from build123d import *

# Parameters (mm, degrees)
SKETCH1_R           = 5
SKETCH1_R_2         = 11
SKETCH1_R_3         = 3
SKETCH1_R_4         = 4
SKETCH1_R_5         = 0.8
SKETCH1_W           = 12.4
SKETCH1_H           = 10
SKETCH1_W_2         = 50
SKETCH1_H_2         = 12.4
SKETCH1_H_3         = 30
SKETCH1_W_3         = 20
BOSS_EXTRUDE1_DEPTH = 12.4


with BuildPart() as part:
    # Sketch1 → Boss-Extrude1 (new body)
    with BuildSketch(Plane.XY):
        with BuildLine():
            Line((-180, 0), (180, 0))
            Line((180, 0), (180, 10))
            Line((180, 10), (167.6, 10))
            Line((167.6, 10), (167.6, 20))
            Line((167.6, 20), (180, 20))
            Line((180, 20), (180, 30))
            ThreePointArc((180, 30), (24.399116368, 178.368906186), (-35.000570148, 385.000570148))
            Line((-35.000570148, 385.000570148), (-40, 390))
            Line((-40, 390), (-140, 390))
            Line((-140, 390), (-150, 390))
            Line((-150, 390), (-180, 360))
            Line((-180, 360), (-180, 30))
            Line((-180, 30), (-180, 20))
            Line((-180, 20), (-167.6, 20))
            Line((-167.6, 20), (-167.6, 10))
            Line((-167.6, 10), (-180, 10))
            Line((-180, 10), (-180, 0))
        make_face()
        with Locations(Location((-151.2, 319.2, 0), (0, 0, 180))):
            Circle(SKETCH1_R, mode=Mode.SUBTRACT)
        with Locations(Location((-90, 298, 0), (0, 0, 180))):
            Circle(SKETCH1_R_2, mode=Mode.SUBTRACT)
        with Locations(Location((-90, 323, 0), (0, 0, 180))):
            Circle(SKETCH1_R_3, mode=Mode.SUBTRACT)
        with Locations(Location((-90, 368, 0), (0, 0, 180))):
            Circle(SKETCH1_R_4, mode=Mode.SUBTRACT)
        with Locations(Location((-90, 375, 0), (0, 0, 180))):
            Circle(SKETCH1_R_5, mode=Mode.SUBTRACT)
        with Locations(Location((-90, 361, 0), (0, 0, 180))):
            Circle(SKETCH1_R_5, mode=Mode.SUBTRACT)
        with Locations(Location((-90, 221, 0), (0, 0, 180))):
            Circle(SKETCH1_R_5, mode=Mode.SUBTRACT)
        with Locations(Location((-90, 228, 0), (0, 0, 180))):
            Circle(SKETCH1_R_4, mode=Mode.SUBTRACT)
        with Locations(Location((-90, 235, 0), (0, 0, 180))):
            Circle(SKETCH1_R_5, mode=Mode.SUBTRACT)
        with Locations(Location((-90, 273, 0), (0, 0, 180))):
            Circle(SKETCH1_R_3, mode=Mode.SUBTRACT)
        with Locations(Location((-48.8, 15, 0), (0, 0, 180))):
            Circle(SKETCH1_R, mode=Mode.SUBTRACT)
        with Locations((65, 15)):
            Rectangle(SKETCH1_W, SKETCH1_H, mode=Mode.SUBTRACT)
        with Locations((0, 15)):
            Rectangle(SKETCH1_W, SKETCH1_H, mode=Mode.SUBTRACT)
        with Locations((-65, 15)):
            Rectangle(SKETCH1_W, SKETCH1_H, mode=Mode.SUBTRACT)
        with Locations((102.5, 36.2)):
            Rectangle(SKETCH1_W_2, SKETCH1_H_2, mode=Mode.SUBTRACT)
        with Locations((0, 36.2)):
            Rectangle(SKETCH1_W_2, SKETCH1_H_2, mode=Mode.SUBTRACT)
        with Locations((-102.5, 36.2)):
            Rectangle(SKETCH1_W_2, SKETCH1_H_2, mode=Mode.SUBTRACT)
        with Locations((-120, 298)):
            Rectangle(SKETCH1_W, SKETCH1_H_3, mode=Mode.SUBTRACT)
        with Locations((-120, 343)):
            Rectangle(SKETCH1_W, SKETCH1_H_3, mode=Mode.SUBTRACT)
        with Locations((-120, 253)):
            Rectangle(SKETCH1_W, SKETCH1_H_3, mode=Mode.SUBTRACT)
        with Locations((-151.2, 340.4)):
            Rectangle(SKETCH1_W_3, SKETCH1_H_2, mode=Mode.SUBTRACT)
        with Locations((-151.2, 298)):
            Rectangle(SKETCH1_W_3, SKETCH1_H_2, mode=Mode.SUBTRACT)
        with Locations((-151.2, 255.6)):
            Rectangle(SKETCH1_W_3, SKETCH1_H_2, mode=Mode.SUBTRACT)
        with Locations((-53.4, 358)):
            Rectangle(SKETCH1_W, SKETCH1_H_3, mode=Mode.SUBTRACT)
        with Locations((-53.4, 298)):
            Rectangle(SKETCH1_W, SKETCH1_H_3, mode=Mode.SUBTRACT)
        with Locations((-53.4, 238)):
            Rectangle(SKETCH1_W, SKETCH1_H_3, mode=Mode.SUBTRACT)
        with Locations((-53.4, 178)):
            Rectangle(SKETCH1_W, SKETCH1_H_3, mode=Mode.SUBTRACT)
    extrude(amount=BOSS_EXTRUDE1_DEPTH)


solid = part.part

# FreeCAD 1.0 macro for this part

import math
import FreeCAD as App
import Part
import Sketcher
Q = App.Units.Quantity

doc = App.newDocument("Part")
body = doc.addObject("PartDesign::Body", "Body")

# Sketch on XY plane
sketch1 = doc.addObject("Sketcher::SketchObject", "Sketch")
body.addObject(sketch1)
sketch1.AttachmentSupport = (doc.XY_Plane, [""])
sketch1.MapMode = "FlatFace"
sketch1.addGeometry(Part.LineSegment(App.Vector(-180, 0, 0), App.Vector(180, 0, 0)), False)
sketch1.addGeometry(Part.LineSegment(App.Vector(180, 0, 0), App.Vector(180, 10, 0)), False)
sketch1.addGeometry(Part.LineSegment(App.Vector(180, 10, 0), App.Vector(167.6, 10, 0)), False)
sketch1.addGeometry(Part.LineSegment(App.Vector(167.6, 10, 0), App.Vector(167.6, 20, 0)), False)
sketch1.addGeometry(Part.LineSegment(App.Vector(167.6, 20, 0), App.Vector(180, 20, 0)), False)
sketch1.addGeometry(Part.LineSegment(App.Vector(180, 20, 0), App.Vector(180, 30, 0)), False)
sketch1.addGeometry(Part.ArcOfCircle(Part.Circle(App.Vector(375.954188, 391.282764, 0), App.Vector(0, 0, 1), 411.002773), math.radians(-179.124198), math.radians(-118.47472)), False)
sketch1.addGeometry(Part.LineSegment(App.Vector(-35.00057, 385.00057, 0), App.Vector(-40, 390, 0)), False)
sketch1.addGeometry(Part.LineSegment(App.Vector(-40, 390, 0), App.Vector(-150, 390, 0)), False)
sketch1.addGeometry(Part.LineSegment(App.Vector(-150, 390, 0), App.Vector(-180, 360, 0)), False)
sketch1.addGeometry(Part.LineSegment(App.Vector(-180, 360, 0), App.Vector(-180, 20, 0)), False)
sketch1.addGeometry(Part.LineSegment(App.Vector(-180, 20, 0), App.Vector(-167.6, 20, 0)), False)
sketch1.addGeometry(Part.LineSegment(App.Vector(-167.6, 20, 0), App.Vector(-167.6, 10, 0)), False)
sketch1.addGeometry(Part.LineSegment(App.Vector(-167.6, 10, 0), App.Vector(-180, 10, 0)), False)
sketch1.addGeometry(Part.LineSegment(App.Vector(-180, 10, 0), App.Vector(-180, 0, 0)), False)
sketch1.addGeometry(Part.LineSegment(App.Vector(-77.5, 30, 0), App.Vector(-127.5, 30, 0)), False)
sketch1.addGeometry(Part.LineSegment(App.Vector(-127.5, 30, 0), App.Vector(-127.5, 42.4, 0)), False)
sketch1.addGeometry(Part.LineSegment(App.Vector(-127.5, 42.4, 0), App.Vector(-77.5, 42.4, 0)), False)
sketch1.addGeometry(Part.LineSegment(App.Vector(-77.5, 42.4, 0), App.Vector(-77.5, 30, 0)), False)
sketch1.addGeometry(Part.LineSegment(App.Vector(-58.8, 10, 0), App.Vector(-71.2, 10, 0)), False)
sketch1.addGeometry(Part.LineSegment(App.Vector(-71.2, 10, 0), App.Vector(-71.2, 20, 0)), False)
sketch1.addGeometry(Part.LineSegment(App.Vector(-71.2, 20, 0), App.Vector(-58.8, 20, 0)), False)
sketch1.addGeometry(Part.LineSegment(App.Vector(-58.8, 20, 0), App.Vector(-58.8, 10, 0)), False)
sketch1.addGeometry(Part.Circle(App.Vector(-48.8, 15, 0), App.Vector(0, 0, 1), 5), False)
sketch1.addGeometry(Part.LineSegment(App.Vector(-47.2, 163, 0), App.Vector(-59.6, 163, 0)), False)
sketch1.addGeometry(Part.LineSegment(App.Vector(-59.6, 163, 0), App.Vector(-59.6, 193, 0)), False)
sketch1.addGeometry(Part.LineSegment(App.Vector(-59.6, 193, 0), App.Vector(-47.2, 193, 0)), False)
sketch1.addGeometry(Part.LineSegment(App.Vector(-47.2, 193, 0), App.Vector(-47.2, 163, 0)), False)
sketch1.addGeometry(Part.LineSegment(App.Vector(6.2, 10, 0), App.Vector(-6.2, 10, 0)), False)
sketch1.addGeometry(Part.LineSegment(App.Vector(-6.2, 10, 0), App.Vector(-6.2, 20, 0)), False)
sketch1.addGeometry(Part.LineSegment(App.Vector(-6.2, 20, 0), App.Vector(6.2, 20, 0)), False)
sketch1.addGeometry(Part.LineSegment(App.Vector(6.2, 20, 0), App.Vector(6.2, 10, 0)), False)
sketch1.addGeometry(Part.LineSegment(App.Vector(25, 30, 0), App.Vector(-25, 30, 0)), False)
sketch1.addGeometry(Part.LineSegment(App.Vector(-25, 30, 0), App.Vector(-25, 42.4, 0)), False)
sketch1.addGeometry(Part.LineSegment(App.Vector(-25, 42.4, 0), App.Vector(25, 42.4, 0)), False)
sketch1.addGeometry(Part.LineSegment(App.Vector(25, 42.4, 0), App.Vector(25, 30, 0)), False)
sketch1.addGeometry(Part.LineSegment(App.Vector(71.2, 10, 0), App.Vector(58.8, 10, 0)), False)
sketch1.addGeometry(Part.LineSegment(App.Vector(58.8, 10, 0), App.Vector(58.8, 20, 0)), False)
sketch1.addGeometry(Part.LineSegment(App.Vector(58.8, 20, 0), App.Vector(71.2, 20, 0)), False)
sketch1.addGeometry(Part.LineSegment(App.Vector(71.2, 20, 0), App.Vector(71.2, 10, 0)), False)
sketch1.addGeometry(Part.LineSegment(App.Vector(127.5, 30, 0), App.Vector(77.5, 30, 0)), False)
sketch1.addGeometry(Part.LineSegment(App.Vector(77.5, 30, 0), App.Vector(77.5, 42.4, 0)), False)
sketch1.addGeometry(Part.LineSegment(App.Vector(77.5, 42.4, 0), App.Vector(127.5, 42.4, 0)), False)
sketch1.addGeometry(Part.LineSegment(App.Vector(127.5, 42.4, 0), App.Vector(127.5, 30, 0)), False)
sketch1.addGeometry(Part.Circle(App.Vector(-90, 221, 0), App.Vector(0, 0, 1), 0.8), False)
sketch1.addGeometry(Part.Circle(App.Vector(-90, 228, 0), App.Vector(0, 0, 1), 4), False)
sketch1.addGeometry(Part.Circle(App.Vector(-90, 235, 0), App.Vector(0, 0, 1), 0.8), False)
sketch1.addGeometry(Part.LineSegment(App.Vector(-141.2, 249.4, 0), App.Vector(-161.2, 249.4, 0)), False)
sketch1.addGeometry(Part.LineSegment(App.Vector(-161.2, 249.4, 0), App.Vector(-161.2, 261.8, 0)), False)
sketch1.addGeometry(Part.LineSegment(App.Vector(-161.2, 261.8, 0), App.Vector(-141.2, 261.8, 0)), False)
sketch1.addGeometry(Part.LineSegment(App.Vector(-141.2, 261.8, 0), App.Vector(-141.2, 249.4, 0)), False)
sketch1.addGeometry(Part.LineSegment(App.Vector(-113.8, 238, 0), App.Vector(-126.2, 238, 0)), False)
sketch1.addGeometry(Part.LineSegment(App.Vector(-126.2, 238, 0), App.Vector(-126.2, 268, 0)), False)
sketch1.addGeometry(Part.LineSegment(App.Vector(-126.2, 268, 0), App.Vector(-113.8, 268, 0)), False)
sketch1.addGeometry(Part.LineSegment(App.Vector(-113.8, 268, 0), App.Vector(-113.8, 238, 0)), False)
sketch1.addGeometry(Part.Circle(App.Vector(-90, 273, 0), App.Vector(0, 0, 1), 3), False)
sketch1.addGeometry(Part.LineSegment(App.Vector(-47.2, 223, 0), App.Vector(-59.6, 223, 0)), False)
sketch1.addGeometry(Part.LineSegment(App.Vector(-59.6, 223, 0), App.Vector(-59.6, 253, 0)), False)
sketch1.addGeometry(Part.LineSegment(App.Vector(-59.6, 253, 0), App.Vector(-47.2, 253, 0)), False)
sketch1.addGeometry(Part.LineSegment(App.Vector(-47.2, 253, 0), App.Vector(-47.2, 223, 0)), False)
sketch1.addGeometry(Part.LineSegment(App.Vector(-141.2, 291.8, 0), App.Vector(-161.2, 291.8, 0)), False)
sketch1.addGeometry(Part.LineSegment(App.Vector(-161.2, 291.8, 0), App.Vector(-161.2, 304.2, 0)), False)
sketch1.addGeometry(Part.LineSegment(App.Vector(-161.2, 304.2, 0), App.Vector(-141.2, 304.2, 0)), False)
sketch1.addGeometry(Part.LineSegment(App.Vector(-141.2, 304.2, 0), App.Vector(-141.2, 291.8, 0)), False)
sketch1.addGeometry(Part.Circle(App.Vector(-151.2, 319.2, 0), App.Vector(0, 0, 1), 5), False)
sketch1.addGeometry(Part.LineSegment(App.Vector(-113.8, 283, 0), App.Vector(-126.2, 283, 0)), False)
sketch1.addGeometry(Part.LineSegment(App.Vector(-126.2, 283, 0), App.Vector(-126.2, 313, 0)), False)
sketch1.addGeometry(Part.LineSegment(App.Vector(-126.2, 313, 0), App.Vector(-113.8, 313, 0)), False)
sketch1.addGeometry(Part.LineSegment(App.Vector(-113.8, 313, 0), App.Vector(-113.8, 283, 0)), False)
sketch1.addGeometry(Part.Circle(App.Vector(-90, 298, 0), App.Vector(0, 0, 1), 11), False)
sketch1.addGeometry(Part.Circle(App.Vector(-90, 323, 0), App.Vector(0, 0, 1), 3), False)
sketch1.addGeometry(Part.LineSegment(App.Vector(-141.2, 334.2, 0), App.Vector(-161.2, 334.2, 0)), False)
sketch1.addGeometry(Part.LineSegment(App.Vector(-161.2, 334.2, 0), App.Vector(-161.2, 346.6, 0)), False)
sketch1.addGeometry(Part.LineSegment(App.Vector(-161.2, 346.6, 0), App.Vector(-141.2, 346.6, 0)), False)
sketch1.addGeometry(Part.LineSegment(App.Vector(-141.2, 346.6, 0), App.Vector(-141.2, 334.2, 0)), False)
sketch1.addGeometry(Part.LineSegment(App.Vector(-113.8, 328, 0), App.Vector(-126.2, 328, 0)), False)
sketch1.addGeometry(Part.LineSegment(App.Vector(-126.2, 328, 0), App.Vector(-126.2, 358, 0)), False)
sketch1.addGeometry(Part.LineSegment(App.Vector(-126.2, 358, 0), App.Vector(-113.8, 358, 0)), False)
sketch1.addGeometry(Part.LineSegment(App.Vector(-113.8, 358, 0), App.Vector(-113.8, 328, 0)), False)
sketch1.addGeometry(Part.Circle(App.Vector(-90, 361, 0), App.Vector(0, 0, 1), 0.8), False)
sketch1.addGeometry(Part.Circle(App.Vector(-90, 368, 0), App.Vector(0, 0, 1), 4), False)
sketch1.addGeometry(Part.Circle(App.Vector(-90, 375, 0), App.Vector(0, 0, 1), 0.8), False)
sketch1.addGeometry(Part.LineSegment(App.Vector(-47.2, 283, 0), App.Vector(-59.6, 283, 0)), False)
sketch1.addGeometry(Part.LineSegment(App.Vector(-59.6, 283, 0), App.Vector(-59.6, 313, 0)), False)
sketch1.addGeometry(Part.LineSegment(App.Vector(-59.6, 313, 0), App.Vector(-47.2, 313, 0)), False)
sketch1.addGeometry(Part.LineSegment(App.Vector(-47.2, 313, 0), App.Vector(-47.2, 283, 0)), False)
sketch1.addGeometry(Part.LineSegment(App.Vector(-47.2, 343, 0), App.Vector(-59.6, 343, 0)), False)
sketch1.addGeometry(Part.LineSegment(App.Vector(-59.6, 343, 0), App.Vector(-59.6, 373, 0)), False)
sketch1.addGeometry(Part.LineSegment(App.Vector(-59.6, 373, 0), App.Vector(-47.2, 373, 0)), False)
sketch1.addGeometry(Part.LineSegment(App.Vector(-47.2, 373, 0), App.Vector(-47.2, 343, 0)), False)
sketch1.addConstraint(Sketcher.Constraint("Coincident", 0, 2, 1, 1))
sketch1.addConstraint(Sketcher.Constraint("Coincident", 1, 2, 2, 1))
sketch1.addConstraint(Sketcher.Constraint("Coincident", 2, 2, 3, 1))
sketch1.addConstraint(Sketcher.Constraint("Coincident", 3, 2, 4, 1))
sketch1.addConstraint(Sketcher.Constraint("Coincident", 4, 2, 5, 1))
sketch1.addConstraint(Sketcher.Constraint("Coincident", 5, 2, 6, 2))
sketch1.addConstraint(Sketcher.Constraint("Coincident", 6, 1, 7, 1))
sketch1.addConstraint(Sketcher.Constraint("Coincident", 7, 2, 8, 1))
sketch1.addConstraint(Sketcher.Constraint("Coincident", 8, 2, 9, 1))
sketch1.addConstraint(Sketcher.Constraint("Coincident", 9, 2, 10, 1))
sketch1.addConstraint(Sketcher.Constraint("Coincident", 10, 2, 11, 1))
sketch1.addConstraint(Sketcher.Constraint("Coincident", 11, 2, 12, 1))
sketch1.addConstraint(Sketcher.Constraint("Coincident", 12, 2, 13, 1))
sketch1.addConstraint(Sketcher.Constraint("Coincident", 13, 2, 14, 1))
sketch1.addConstraint(Sketcher.Constraint("Coincident", 14, 2, 0, 1))
sketch1.addConstraint(Sketcher.Constraint("Coincident", 15, 2, 16, 1))
sketch1.addConstraint(Sketcher.Constraint("Coincident", 16, 2, 17, 1))
sketch1.addConstraint(Sketcher.Constraint("Coincident", 17, 2, 18, 1))
sketch1.addConstraint(Sketcher.Constraint("Coincident", 18, 2, 15, 1))
sketch1.addConstraint(Sketcher.Constraint("Coincident", 19, 2, 20, 1))
sketch1.addConstraint(Sketcher.Constraint("Coincident", 20, 2, 21, 1))
sketch1.addConstraint(Sketcher.Constraint("Coincident", 21, 2, 22, 1))
sketch1.addConstraint(Sketcher.Constraint("Coincident", 22, 2, 19, 1))
sketch1.addConstraint(Sketcher.Constraint("Coincident", 24, 2, 25, 1))
sketch1.addConstraint(Sketcher.Constraint("Coincident", 25, 2, 26, 1))
sketch1.addConstraint(Sketcher.Constraint("Coincident", 26, 2, 27, 1))
sketch1.addConstraint(Sketcher.Constraint("Coincident", 27, 2, 24, 1))
sketch1.addConstraint(Sketcher.Constraint("Coincident", 28, 2, 29, 1))
sketch1.addConstraint(Sketcher.Constraint("Coincident", 29, 2, 30, 1))
sketch1.addConstraint(Sketcher.Constraint("Coincident", 30, 2, 31, 1))
sketch1.addConstraint(Sketcher.Constraint("Coincident", 31, 2, 28, 1))
sketch1.addConstraint(Sketcher.Constraint("Coincident", 32, 2, 33, 1))
sketch1.addConstraint(Sketcher.Constraint("Coincident", 33, 2, 34, 1))
sketch1.addConstraint(Sketcher.Constraint("Coincident", 34, 2, 35, 1))
sketch1.addConstraint(Sketcher.Constraint("Coincident", 35, 2, 32, 1))
sketch1.addConstraint(Sketcher.Constraint("Coincident", 36, 2, 37, 1))
sketch1.addConstraint(Sketcher.Constraint("Coincident", 37, 2, 38, 1))
sketch1.addConstraint(Sketcher.Constraint("Coincident", 38, 2, 39, 1))
sketch1.addConstraint(Sketcher.Constraint("Coincident", 39, 2, 36, 1))
sketch1.addConstraint(Sketcher.Constraint("Coincident", 40, 2, 41, 1))
sketch1.addConstraint(Sketcher.Constraint("Coincident", 41, 2, 42, 1))
sketch1.addConstraint(Sketcher.Constraint("Coincident", 42, 2, 43, 1))
sketch1.addConstraint(Sketcher.Constraint("Coincident", 43, 2, 40, 1))
sketch1.addConstraint(Sketcher.Constraint("Coincident", 47, 2, 48, 1))
sketch1.addConstraint(Sketcher.Constraint("Coincident", 48, 2, 49, 1))
sketch1.addConstraint(Sketcher.Constraint("Coincident", 49, 2, 50, 1))
sketch1.addConstraint(Sketcher.Constraint("Coincident", 50, 2, 47, 1))
sketch1.addConstraint(Sketcher.Constraint("Coincident", 51, 2, 52, 1))
sketch1.addConstraint(Sketcher.Constraint("Coincident", 52, 2, 53, 1))
sketch1.addConstraint(Sketcher.Constraint("Coincident", 53, 2, 54, 1))
sketch1.addConstraint(Sketcher.Constraint("Coincident", 54, 2, 51, 1))
sketch1.addConstraint(Sketcher.Constraint("Coincident", 56, 2, 57, 1))
sketch1.addConstraint(Sketcher.Constraint("Coincident", 57, 2, 58, 1))
sketch1.addConstraint(Sketcher.Constraint("Coincident", 58, 2, 59, 1))
sketch1.addConstraint(Sketcher.Constraint("Coincident", 59, 2, 56, 1))
sketch1.addConstraint(Sketcher.Constraint("Coincident", 60, 2, 61, 1))
sketch1.addConstraint(Sketcher.Constraint("Coincident", 61, 2, 62, 1))
sketch1.addConstraint(Sketcher.Constraint("Coincident", 62, 2, 63, 1))
sketch1.addConstraint(Sketcher.Constraint("Coincident", 63, 2, 60, 1))
sketch1.addConstraint(Sketcher.Constraint("Coincident", 65, 2, 66, 1))
sketch1.addConstraint(Sketcher.Constraint("Coincident", 66, 2, 67, 1))
sketch1.addConstraint(Sketcher.Constraint("Coincident", 67, 2, 68, 1))
sketch1.addConstraint(Sketcher.Constraint("Coincident", 68, 2, 65, 1))
sketch1.addConstraint(Sketcher.Constraint("Coincident", 71, 2, 72, 1))
sketch1.addConstraint(Sketcher.Constraint("Coincident", 72, 2, 73, 1))
sketch1.addConstraint(Sketcher.Constraint("Coincident", 73, 2, 74, 1))
sketch1.addConstraint(Sketcher.Constraint("Coincident", 74, 2, 71, 1))
sketch1.addConstraint(Sketcher.Constraint("Coincident", 75, 2, 76, 1))
sketch1.addConstraint(Sketcher.Constraint("Coincident", 76, 2, 77, 1))
sketch1.addConstraint(Sketcher.Constraint("Coincident", 77, 2, 78, 1))
sketch1.addConstraint(Sketcher.Constraint("Coincident", 78, 2, 75, 1))
sketch1.addConstraint(Sketcher.Constraint("Coincident", 82, 2, 83, 1))
sketch1.addConstraint(Sketcher.Constraint("Coincident", 83, 2, 84, 1))
sketch1.addConstraint(Sketcher.Constraint("Coincident", 84, 2, 85, 1))
sketch1.addConstraint(Sketcher.Constraint("Coincident", 85, 2, 82, 1))
sketch1.addConstraint(Sketcher.Constraint("Coincident", 86, 2, 87, 1))
sketch1.addConstraint(Sketcher.Constraint("Coincident", 87, 2, 88, 1))
sketch1.addConstraint(Sketcher.Constraint("Coincident", 88, 2, 89, 1))
sketch1.addConstraint(Sketcher.Constraint("Coincident", 89, 2, 86, 1))
sketch1.addConstraint(Sketcher.Constraint("Horizontal", 0))
sketch1.addConstraint(Sketcher.Constraint("Vertical", 1))
sketch1.addConstraint(Sketcher.Constraint("Horizontal", 2))
sketch1.addConstraint(Sketcher.Constraint("Vertical", 3))
sketch1.addConstraint(Sketcher.Constraint("Horizontal", 4))
sketch1.addConstraint(Sketcher.Constraint("Vertical", 5))
sketch1.addConstraint(Sketcher.Constraint("Horizontal", 8))
sketch1.addConstraint(Sketcher.Constraint("Vertical", 10))
sketch1.addConstraint(Sketcher.Constraint("Horizontal", 11))
sketch1.addConstraint(Sketcher.Constraint("Vertical", 12))
sketch1.addConstraint(Sketcher.Constraint("Horizontal", 13))
sketch1.addConstraint(Sketcher.Constraint("Vertical", 14))
sketch1.addConstraint(Sketcher.Constraint("Horizontal", 15))
sketch1.addConstraint(Sketcher.Constraint("Vertical", 16))
sketch1.addConstraint(Sketcher.Constraint("Horizontal", 17))
sketch1.addConstraint(Sketcher.Constraint("Vertical", 18))
sketch1.addConstraint(Sketcher.Constraint("Horizontal", 19))
sketch1.addConstraint(Sketcher.Constraint("Vertical", 20))
sketch1.addConstraint(Sketcher.Constraint("Horizontal", 21))
sketch1.addConstraint(Sketcher.Constraint("Vertical", 22))
sketch1.addConstraint(Sketcher.Constraint("Horizontal", 24))
sketch1.addConstraint(Sketcher.Constraint("Vertical", 25))
sketch1.addConstraint(Sketcher.Constraint("Horizontal", 26))
sketch1.addConstraint(Sketcher.Constraint("Vertical", 27))
sketch1.addConstraint(Sketcher.Constraint("Horizontal", 28))
sketch1.addConstraint(Sketcher.Constraint("Vertical", 29))
sketch1.addConstraint(Sketcher.Constraint("Horizontal", 30))
sketch1.addConstraint(Sketcher.Constraint("Vertical", 31))
sketch1.addConstraint(Sketcher.Constraint("Horizontal", 32))
sketch1.addConstraint(Sketcher.Constraint("Vertical", 33))
sketch1.addConstraint(Sketcher.Constraint("Horizontal", 34))
sketch1.addConstraint(Sketcher.Constraint("Vertical", 35))
sketch1.addConstraint(Sketcher.Constraint("Horizontal", 36))
sketch1.addConstraint(Sketcher.Constraint("Vertical", 37))
sketch1.addConstraint(Sketcher.Constraint("Horizontal", 38))
sketch1.addConstraint(Sketcher.Constraint("Vertical", 39))
sketch1.addConstraint(Sketcher.Constraint("Horizontal", 40))
sketch1.addConstraint(Sketcher.Constraint("Vertical", 41))
sketch1.addConstraint(Sketcher.Constraint("Horizontal", 42))
sketch1.addConstraint(Sketcher.Constraint("Vertical", 43))
sketch1.addConstraint(Sketcher.Constraint("Horizontal", 47))
sketch1.addConstraint(Sketcher.Constraint("Vertical", 48))
sketch1.addConstraint(Sketcher.Constraint("Horizontal", 49))
sketch1.addConstraint(Sketcher.Constraint("Vertical", 50))
sketch1.addConstraint(Sketcher.Constraint("Horizontal", 51))
sketch1.addConstraint(Sketcher.Constraint("Vertical", 52))
sketch1.addConstraint(Sketcher.Constraint("Horizontal", 53))
sketch1.addConstraint(Sketcher.Constraint("Vertical", 54))
sketch1.addConstraint(Sketcher.Constraint("Horizontal", 56))
sketch1.addConstraint(Sketcher.Constraint("Vertical", 57))
sketch1.addConstraint(Sketcher.Constraint("Horizontal", 58))
sketch1.addConstraint(Sketcher.Constraint("Vertical", 59))
sketch1.addConstraint(Sketcher.Constraint("Horizontal", 60))
sketch1.addConstraint(Sketcher.Constraint("Vertical", 61))
sketch1.addConstraint(Sketcher.Constraint("Horizontal", 62))
sketch1.addConstraint(Sketcher.Constraint("Vertical", 63))
sketch1.addConstraint(Sketcher.Constraint("Horizontal", 65))
sketch1.addConstraint(Sketcher.Constraint("Vertical", 66))
sketch1.addConstraint(Sketcher.Constraint("Horizontal", 67))
sketch1.addConstraint(Sketcher.Constraint("Vertical", 68))
sketch1.addConstraint(Sketcher.Constraint("Horizontal", 71))
sketch1.addConstraint(Sketcher.Constraint("Vertical", 72))
sketch1.addConstraint(Sketcher.Constraint("Horizontal", 73))
sketch1.addConstraint(Sketcher.Constraint("Vertical", 74))
sketch1.addConstraint(Sketcher.Constraint("Horizontal", 75))
sketch1.addConstraint(Sketcher.Constraint("Vertical", 76))
sketch1.addConstraint(Sketcher.Constraint("Horizontal", 77))
sketch1.addConstraint(Sketcher.Constraint("Vertical", 78))
sketch1.addConstraint(Sketcher.Constraint("Horizontal", 82))
sketch1.addConstraint(Sketcher.Constraint("Vertical", 83))
sketch1.addConstraint(Sketcher.Constraint("Horizontal", 84))
sketch1.addConstraint(Sketcher.Constraint("Vertical", 85))
sketch1.addConstraint(Sketcher.Constraint("Horizontal", 86))
sketch1.addConstraint(Sketcher.Constraint("Vertical", 87))
sketch1.addConstraint(Sketcher.Constraint("Horizontal", 88))
sketch1.addConstraint(Sketcher.Constraint("Vertical", 89))
sketch1.addConstraint(Sketcher.Constraint("Equal", 44, 46))
sketch1.addConstraint(Sketcher.Constraint("Equal", 23, 64))
sketch1.addConstraint(Sketcher.Constraint("Equal", 55, 70))
sketch1.addConstraint(Sketcher.Constraint("Equal", 46, 79))
sketch1.addConstraint(Sketcher.Constraint("Equal", 45, 80))
sketch1.addConstraint(Sketcher.Constraint("Equal", 79, 81))
sketch1.addConstraint(Sketcher.Constraint("Symmetric", 0, 2, 14, 2, -1, 1))
sketch1.addConstraint(Sketcher.Constraint("Symmetric", 4, 2, 10, 2, -2))
sketch1.addConstraint(Sketcher.Constraint("Symmetric", 2, 2, 12, 2, -2))
sketch1.addConstraint(Sketcher.Constraint("Symmetric", 22, 2, 36, 2, -2))
sketch1.addConstraint(Sketcher.Constraint("Symmetric", 20, 2, 38, 2, -2))
sketch1.addConstraint(Sketcher.Constraint("Symmetric", 18, 2, 40, 2, -2))
sketch1.addConstraint(Sketcher.Constraint("Symmetric", 16, 2, 42, 2, -2))
sketch1.addConstraint(Sketcher.Constraint("Perpendicular", 7, 9))
sketch1.addConstraint(Sketcher.Constraint("Horizontal", 5, 2, 15, 2))
sketch1.addConstraint(Sketcher.Constraint("Horizontal", 13, 2, 19, 2))
sketch1.addConstraint(Sketcher.Constraint("Horizontal", 11, 2, 20, 2))
sketch1.addConstraint(Sketcher.Constraint("Horizontal", 22, 2, 28, 2))
sketch1.addConstraint(Sketcher.Constraint("Horizontal", 21, 2, 29, 2))
sketch1.addConstraint(Sketcher.Constraint("Horizontal", 18, 2, 32, 2))
sketch1.addConstraint(Sketcher.Constraint("Horizontal", 17, 2, 33, 2))
sketch1.addConstraint(Sketcher.Constraint("Horizontal", 68, 2, 82, 2))
sketch1.addConstraint(Sketcher.Constraint("Horizontal", 67, 2, 83, 2))
sketch1.addConstraint(Sketcher.Constraint("Vertical", 44, 3, 45, 3))
sketch1.addConstraint(Sketcher.Constraint("Vertical", 45, 3, 46, 3))
sketch1.addConstraint(Sketcher.Constraint("Vertical", 46, 3, 55, 3))
sketch1.addConstraint(Sketcher.Constraint("Vertical", 55, 3, 69, 3))
sketch1.addConstraint(Sketcher.Constraint("Vertical", 69, 3, 70, 3))
sketch1.addConstraint(Sketcher.Constraint("Vertical", 70, 3, 79, 3))
sketch1.addConstraint(Sketcher.Constraint("Vertical", 79, 3, 80, 3))
sketch1.addConstraint(Sketcher.Constraint("Vertical", 80, 3, 81, 3))
sketch1.addConstraint(Sketcher.Constraint("Vertical", 1, 2, 4, 2))
sketch1.addConstraint(Sketcher.Constraint("Vertical", 25, 2, 56, 2))
sketch1.addConstraint(Sketcher.Constraint("Vertical", 27, 2, 58, 2))
sketch1.addConstraint(Sketcher.Constraint("Vertical", 48, 2, 60, 2))
sketch1.addConstraint(Sketcher.Constraint("Vertical", 50, 2, 62, 2))
sketch1.addConstraint(Sketcher.Constraint("Vertical", 52, 2, 65, 2))
sketch1.addConstraint(Sketcher.Constraint("Vertical", 54, 2, 67, 2))
sketch1.addConstraint(Sketcher.Constraint("Vertical", 61, 2, 71, 2))
sketch1.addConstraint(Sketcher.Constraint("Vertical", 63, 2, 73, 2))
sketch1.addConstraint(Sketcher.Constraint("Vertical", 66, 2, 75, 2))
sketch1.addConstraint(Sketcher.Constraint("Vertical", 68, 2, 77, 2))
sketch1.addConstraint(Sketcher.Constraint("Vertical", 57, 2, 82, 2))
sketch1.addConstraint(Sketcher.Constraint("Vertical", 59, 2, 84, 2))
sketch1.addConstraint(Sketcher.Constraint("Vertical", 83, 2, 86, 2))
sketch1.addConstraint(Sketcher.Constraint("Vertical", 85, 2, 88, 2))
sketch1.addConstraint(Sketcher.Constraint("Equal", 13, 19))
sketch1.addConstraint(Sketcher.Constraint("Equal", 21, 24))
sketch1.addConstraint(Sketcher.Constraint("Equal", 26, 28))
sketch1.addConstraint(Sketcher.Constraint("Equal", 17, 32))
sketch1.addConstraint(Sketcher.Constraint("Equal", 38, 51))
sketch1.addConstraint(Sketcher.Constraint("Equal", 1, 3))
sketch1.addConstraint(Sketcher.Constraint("Equal", 3, 5))
sketch1.addConstraint(Sketcher.Constraint("Equal", 88, 16))
sketch1.addConstraint(Sketcher.Constraint("Equal", 43, 48))
sketch1.addConstraint(Sketcher.Constraint("Equal", 27, 52))
sketch1.addConstraint(Sketcher.Constraint("Equal", 54, 57))
sketch1.addConstraint(Sketcher.Constraint("Equal", 50, 61))
sketch1.addConstraint(Sketcher.Constraint("Equal", 59, 66))
sketch1.addConstraint(Sketcher.Constraint("Equal", 63, 72))
sketch1.addConstraint(Sketcher.Constraint("Equal", 68, 76))
sketch1.addConstraint(Sketcher.Constraint("Equal", 85, 87))
sketch1.addConstraint(Sketcher.Constraint("Diameter", 23, Q("10 mm")))
sketch1.addConstraint(Sketcher.Constraint("Diameter", 45, Q("8 mm")))
sketch1.addConstraint(Sketcher.Constraint("Diameter", 55, Q("6 mm")))
sketch1.addConstraint(Sketcher.Constraint("Diameter", 69, Q("22 mm")))
sketch1.addConstraint(Sketcher.Constraint("Diameter", 44, Q("1.6 mm")))
sketch1.addConstraint(Sketcher.Constraint("DistanceX", 0, 1, 0, 2, Q("360 mm")))
sketch1.addConstraint(Sketcher.Constraint("DistanceX", 8, 2, 8, 1, Q("110 mm")))
sketch1.addConstraint(Sketcher.Constraint("DistanceX", 15, 2, 15, 1, Q("50 mm")))
sketch1.addConstraint(Sketcher.Constraint("DistanceX", 47, 2, 47, 1, Q("20 mm")))
sketch1.addConstraint(Sketcher.Constraint("DistanceY", 1, 1, 1, 2, Q("10 mm")))
sketch1.addConstraint(Sketcher.Constraint("DistanceY", 10, 2, 10, 1, Q("340 mm")))
sketch1.addConstraint(Sketcher.Constraint("DistanceY", 25, 1, 25, 2, Q("30 mm")))
sketch1.addConstraint(Sketcher.Constraint("Angle", 7, Q("135 deg")))
sketch1.addConstraint(Sketcher.Constraint("DistanceX", 2, 2, 2, 1, Q("12.4 mm")))
sketch1.addConstraint(Sketcher.Constraint("DistanceY", -1, 1, 23, 3, Q("15 mm")))
sketch1.addConstraint(Sketcher.Constraint("DistanceX", 44, 3, -1, 1, Q("90 mm")))
sketch1.addConstraint(Sketcher.Constraint("DistanceY", -1, 1, 44, 3, Q("221 mm")))
sketch1.addConstraint(Sketcher.Constraint("DistanceY", -1, 1, 45, 3, Q("228 mm")))
sketch1.addConstraint(Sketcher.Constraint("DistanceY", -1, 1, 46, 3, Q("235 mm")))
sketch1.addConstraint(Sketcher.Constraint("DistanceY", -1, 1, 55, 3, Q("273 mm")))
sketch1.addConstraint(Sketcher.Constraint("DistanceY", -1, 1, 69, 3, Q("298 mm")))
sketch1.addConstraint(Sketcher.Constraint("DistanceY", -1, 1, 70, 3, Q("323 mm")))
sketch1.addConstraint(Sketcher.Constraint("DistanceY", -1, 1, 79, 3, Q("361 mm")))
sketch1.addConstraint(Sketcher.Constraint("DistanceY", -1, 1, 80, 3, Q("368 mm")))
sketch1.addConstraint(Sketcher.Constraint("DistanceY", -1, 1, 81, 3, Q("375 mm")))
sketch1.addConstraint(Sketcher.Constraint("DistanceX", 7, 2, -1, 1, Q("40 mm")))
sketch1.addConstraint(Sketcher.Constraint("DistanceY", -1, 1, 24, 2, Q("163 mm")))
sketch1.addConstraint(Sketcher.Constraint("DistanceX", 32, 2, -1, 1, Q("25 mm")))
sketch1.addConstraint(Sketcher.Constraint("DistanceY", -1, 1, 51, 2, Q("238 mm")))
sketch1.addConstraint(Sketcher.Constraint("DistanceY", -1, 1, 56, 2, Q("223 mm")))
sketch1.addConstraint(Sketcher.Constraint("DistanceY", -1, 1, 65, 2, Q("283 mm")))
sketch1.addConstraint(Sketcher.Constraint("DistanceY", -1, 1, 75, 2, Q("328 mm")))
sketch1.addConstraint(Sketcher.Constraint("DistanceY", -1, 1, 86, 2, Q("343 mm")))
sketch1.addConstraint(Sketcher.Constraint("DistanceX", 23, 3, -1, 1, Q("48.8 mm")))
sketch1.addConstraint(Sketcher.Constraint("DistanceX", 64, 3, -1, 1, Q("151.2 mm")))
sketch1.addConstraint(Sketcher.Constraint("DistanceY", -1, 1, 64, 3, Q("319.2 mm")))
sketch1.addConstraint(Sketcher.Constraint("DistanceX", 15, 2, -1, 1, Q("127.5 mm")))
sketch1.addConstraint(Sketcher.Constraint("DistanceX", 19, 2, -1, 1, Q("71.2 mm")))
sketch1.addConstraint(Sketcher.Constraint("DistanceX", 24, 2, -1, 1, Q("59.6 mm")))
sketch1.addConstraint(Sketcher.Constraint("DistanceX", 28, 2, -1, 1, Q("6.2 mm")))
sketch1.addConstraint(Sketcher.Constraint("DistanceX", 47, 2, -1, 1, Q("161.2 mm")))
sketch1.addConstraint(Sketcher.Constraint("DistanceY", -1, 1, 47, 2, Q("249.4 mm")))
sketch1.addConstraint(Sketcher.Constraint("DistanceX", 51, 2, -1, 1, Q("126.2 mm")))
sketch1.addConstraint(Sketcher.Constraint("DistanceY", -1, 1, 60, 2, Q("291.8 mm")))
sketch1.addConstraint(Sketcher.Constraint("DistanceY", -1, 1, 71, 2, Q("334.2 mm")))
sketch1.addConstraint(Sketcher.Constraint("Radius", 6, Q("411.002773 mm")))
sketch1.addConstraint(Sketcher.Constraint("Distance", 7, Q("7.070262 mm")))
pad1 = doc.addObject("PartDesign::Pad", "Pad")
body.addObject(pad1)
pad1.Profile = sketch1
pad1.Length = 12.4

doc.recompute()
